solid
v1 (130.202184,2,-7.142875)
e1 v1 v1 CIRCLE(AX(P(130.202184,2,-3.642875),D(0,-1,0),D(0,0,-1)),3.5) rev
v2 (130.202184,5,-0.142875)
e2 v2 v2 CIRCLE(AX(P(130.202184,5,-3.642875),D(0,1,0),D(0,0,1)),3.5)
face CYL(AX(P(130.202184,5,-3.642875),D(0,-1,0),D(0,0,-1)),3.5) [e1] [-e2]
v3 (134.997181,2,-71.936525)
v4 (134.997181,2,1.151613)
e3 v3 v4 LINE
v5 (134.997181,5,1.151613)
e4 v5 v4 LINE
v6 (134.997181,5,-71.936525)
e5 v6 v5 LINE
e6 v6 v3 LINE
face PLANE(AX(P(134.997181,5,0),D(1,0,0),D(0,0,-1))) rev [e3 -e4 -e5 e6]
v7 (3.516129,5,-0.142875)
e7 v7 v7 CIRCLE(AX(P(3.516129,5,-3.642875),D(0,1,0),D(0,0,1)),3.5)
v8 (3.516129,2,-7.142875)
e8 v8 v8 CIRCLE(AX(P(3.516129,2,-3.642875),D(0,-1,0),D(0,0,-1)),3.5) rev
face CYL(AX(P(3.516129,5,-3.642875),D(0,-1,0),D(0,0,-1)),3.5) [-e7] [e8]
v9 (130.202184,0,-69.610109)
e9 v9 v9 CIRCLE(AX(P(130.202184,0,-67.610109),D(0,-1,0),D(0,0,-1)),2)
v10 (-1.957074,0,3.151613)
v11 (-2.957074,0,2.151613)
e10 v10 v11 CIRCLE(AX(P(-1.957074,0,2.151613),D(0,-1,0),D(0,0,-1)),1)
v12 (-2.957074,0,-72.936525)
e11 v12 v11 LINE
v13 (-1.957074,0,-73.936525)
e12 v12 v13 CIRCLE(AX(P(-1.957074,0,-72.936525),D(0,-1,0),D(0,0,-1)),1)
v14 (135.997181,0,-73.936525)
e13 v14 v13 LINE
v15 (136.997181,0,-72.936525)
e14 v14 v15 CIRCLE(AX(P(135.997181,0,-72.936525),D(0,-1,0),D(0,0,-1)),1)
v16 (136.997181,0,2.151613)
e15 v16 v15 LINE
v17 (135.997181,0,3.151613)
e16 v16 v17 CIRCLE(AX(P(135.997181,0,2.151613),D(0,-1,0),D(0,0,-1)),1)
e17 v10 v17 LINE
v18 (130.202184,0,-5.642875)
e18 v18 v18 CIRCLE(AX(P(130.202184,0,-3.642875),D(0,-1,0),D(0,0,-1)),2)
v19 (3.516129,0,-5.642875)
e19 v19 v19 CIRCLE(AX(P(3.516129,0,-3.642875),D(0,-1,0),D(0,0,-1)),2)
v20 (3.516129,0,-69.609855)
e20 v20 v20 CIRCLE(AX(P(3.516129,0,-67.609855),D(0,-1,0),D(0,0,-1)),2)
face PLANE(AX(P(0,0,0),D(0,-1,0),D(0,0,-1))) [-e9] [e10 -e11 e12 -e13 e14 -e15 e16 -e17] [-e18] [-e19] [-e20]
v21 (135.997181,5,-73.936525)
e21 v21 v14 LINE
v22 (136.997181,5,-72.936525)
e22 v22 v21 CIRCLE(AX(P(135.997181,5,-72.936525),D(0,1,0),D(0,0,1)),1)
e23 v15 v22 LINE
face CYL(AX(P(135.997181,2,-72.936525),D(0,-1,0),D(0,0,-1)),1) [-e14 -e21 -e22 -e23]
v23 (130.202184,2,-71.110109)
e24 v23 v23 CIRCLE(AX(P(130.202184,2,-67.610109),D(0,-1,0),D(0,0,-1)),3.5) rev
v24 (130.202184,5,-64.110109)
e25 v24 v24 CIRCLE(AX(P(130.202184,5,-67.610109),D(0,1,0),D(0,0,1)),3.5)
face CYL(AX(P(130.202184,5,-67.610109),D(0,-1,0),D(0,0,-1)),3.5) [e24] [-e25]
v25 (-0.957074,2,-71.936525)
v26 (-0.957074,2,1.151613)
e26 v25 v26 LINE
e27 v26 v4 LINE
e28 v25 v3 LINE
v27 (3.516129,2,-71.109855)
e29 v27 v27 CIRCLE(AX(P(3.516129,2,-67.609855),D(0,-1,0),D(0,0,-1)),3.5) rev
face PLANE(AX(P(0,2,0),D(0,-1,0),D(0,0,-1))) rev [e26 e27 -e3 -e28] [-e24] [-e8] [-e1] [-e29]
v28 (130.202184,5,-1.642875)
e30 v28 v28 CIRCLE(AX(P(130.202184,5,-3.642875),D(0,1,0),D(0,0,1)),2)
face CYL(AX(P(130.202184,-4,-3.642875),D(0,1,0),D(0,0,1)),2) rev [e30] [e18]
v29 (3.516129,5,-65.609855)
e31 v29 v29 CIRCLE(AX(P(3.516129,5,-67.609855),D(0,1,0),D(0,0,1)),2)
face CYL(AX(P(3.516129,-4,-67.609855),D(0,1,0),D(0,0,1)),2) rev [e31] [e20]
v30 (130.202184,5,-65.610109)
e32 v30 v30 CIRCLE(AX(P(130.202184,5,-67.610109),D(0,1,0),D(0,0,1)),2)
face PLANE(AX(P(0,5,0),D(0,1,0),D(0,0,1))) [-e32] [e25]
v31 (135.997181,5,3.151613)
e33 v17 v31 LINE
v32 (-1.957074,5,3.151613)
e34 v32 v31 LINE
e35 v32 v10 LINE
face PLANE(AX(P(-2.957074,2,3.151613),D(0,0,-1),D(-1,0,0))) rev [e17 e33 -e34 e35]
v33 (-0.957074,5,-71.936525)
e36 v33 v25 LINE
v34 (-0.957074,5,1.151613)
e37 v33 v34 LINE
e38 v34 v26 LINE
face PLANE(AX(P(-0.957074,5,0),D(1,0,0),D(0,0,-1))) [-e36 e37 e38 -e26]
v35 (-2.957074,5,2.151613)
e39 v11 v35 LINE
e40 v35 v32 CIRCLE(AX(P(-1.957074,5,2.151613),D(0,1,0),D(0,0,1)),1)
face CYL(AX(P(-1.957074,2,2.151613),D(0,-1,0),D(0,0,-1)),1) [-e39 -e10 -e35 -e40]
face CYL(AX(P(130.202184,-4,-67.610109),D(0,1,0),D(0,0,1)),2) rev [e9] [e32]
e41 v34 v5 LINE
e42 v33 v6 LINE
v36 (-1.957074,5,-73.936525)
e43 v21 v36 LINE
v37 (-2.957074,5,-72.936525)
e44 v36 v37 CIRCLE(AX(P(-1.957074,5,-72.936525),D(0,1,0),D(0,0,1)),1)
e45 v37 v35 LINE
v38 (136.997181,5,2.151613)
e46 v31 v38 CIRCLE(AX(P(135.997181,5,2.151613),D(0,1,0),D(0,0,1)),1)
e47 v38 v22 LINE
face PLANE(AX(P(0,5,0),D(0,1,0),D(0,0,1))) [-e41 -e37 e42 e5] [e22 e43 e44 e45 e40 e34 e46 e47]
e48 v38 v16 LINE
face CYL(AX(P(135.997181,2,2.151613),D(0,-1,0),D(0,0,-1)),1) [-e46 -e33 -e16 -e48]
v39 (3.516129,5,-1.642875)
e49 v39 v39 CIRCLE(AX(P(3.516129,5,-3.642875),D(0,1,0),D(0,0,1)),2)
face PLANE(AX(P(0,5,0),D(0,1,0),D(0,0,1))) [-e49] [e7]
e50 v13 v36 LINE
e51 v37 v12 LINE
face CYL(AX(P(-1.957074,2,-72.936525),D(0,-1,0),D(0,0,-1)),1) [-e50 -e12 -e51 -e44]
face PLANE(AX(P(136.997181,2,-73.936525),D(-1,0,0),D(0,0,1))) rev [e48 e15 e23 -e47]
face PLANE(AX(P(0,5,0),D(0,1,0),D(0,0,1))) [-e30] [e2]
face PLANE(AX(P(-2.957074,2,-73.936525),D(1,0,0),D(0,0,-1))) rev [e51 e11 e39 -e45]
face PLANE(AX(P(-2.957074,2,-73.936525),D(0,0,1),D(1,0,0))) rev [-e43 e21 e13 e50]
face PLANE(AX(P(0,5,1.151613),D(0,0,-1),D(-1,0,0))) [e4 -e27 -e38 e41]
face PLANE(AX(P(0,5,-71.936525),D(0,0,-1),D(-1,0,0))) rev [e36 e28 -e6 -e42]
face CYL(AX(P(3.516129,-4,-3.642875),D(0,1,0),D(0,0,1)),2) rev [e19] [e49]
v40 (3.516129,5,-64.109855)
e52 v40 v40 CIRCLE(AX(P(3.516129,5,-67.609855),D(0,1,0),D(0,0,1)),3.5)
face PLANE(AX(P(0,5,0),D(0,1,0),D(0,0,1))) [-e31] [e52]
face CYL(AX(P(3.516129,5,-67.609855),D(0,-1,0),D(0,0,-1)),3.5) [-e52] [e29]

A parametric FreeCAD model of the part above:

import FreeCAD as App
import Part
import Sketcher

V = App.Vector
Q = App.Units.Quantity


def edges_at(feature, points):
    """Names of the edges that pass closest to the given points."""
    edges = feature.Shape.Edges
    near = lambda p: min(range(len(edges)), key=lambda i: edges[i].distToShape(Part.Vertex(*p))[0])
    return sorted({f"Edge{near(p) + 1}" for p in points})


def add_polygon(sketch, points):
    """Adds a closed chain of lines whose ends are joined by coincident constraints."""
    first, n = sketch.GeometryCount, len(points)
    for a, b in zip(points, points[1:] + points[:1]):
        sketch.addGeometry(Part.LineSegment(App.Vector(*a, 0), App.Vector(*b, 0)), False)
    for i in range(n):
        sketch.addConstraint(Sketcher.Constraint("Coincident", first + i, 2, first + (i + 1) % n, 1))

doc = App.newDocument("Part")
body = doc.addObject("PartDesign::Body", "Body")

sketch1 = body.newObject("Sketcher::SketchObject", "Sketch")
sketch1.AttachmentSupport = (doc.getObject("XZ_Plane"), [""])
sketch1.MapMode = "FlatFace"
add_polygon(sketch1, [(-3, -74), (-3, 3), (137, 3), (137, -74)])
sketch1.addConstraint([
    Sketcher.Constraint("Vertical", 0),
    Sketcher.Constraint("Horizontal", 1),
    Sketcher.Constraint("Vertical", 2),
    Sketcher.Constraint("Horizontal", 3),
    Sketcher.Constraint("DistanceY", 0, 1, 0, 2, Q("77.088138 mm")),
    Sketcher.Constraint("DistanceX", 1, 1, 1, 2, Q("139.954255 mm")),
    Sketcher.Constraint("DistanceX", -1, 1, 1, 2, Q("136.997181 mm")),
    Sketcher.Constraint("DistanceY", -1, 1, 0, 2, Q("3.151613 mm")),
])
pad1 = body.newObject("PartDesign::Pad", "Pad")
pad1.Profile = sketch1
pad1.Length = 2
pad1.Reversed = True

sketch2 = body.newObject("Sketcher::SketchObject", "Sketch001")
sketch2.AttachmentSupport = (doc.getObject("XZ_Plane"), [""])
sketch2.MapMode = "FlatFace"
sketch2.AttachmentOffset = App.Placement(V(0, 0, -2), App.Rotation())
add_polygon(sketch2, [(-3, -73.9), (-3, 3.2), (137, 3.2), (137, -73.9)])
add_polygon(sketch2, [(135, 1.2), (-1, 1.2), (-1, -71.9), (135, -71.9)])
sketch2.addGeometry(Part.Circle(V(3.5, -3.6, 0), V(0, 0, 1), 3.5), False)
sketch2.addGeometry(Part.Circle(V(3.5, -67.6, 0), V(0, 0, 1), 3.5), False)
sketch2.addGeometry(Part.Circle(V(130.2, -67.6, 0), V(0, 0, 1), 3.5), False)
sketch2.addGeometry(Part.Circle(V(130.2, -3.6, 0), V(0, 0, 1), 3.5), False)
sketch2.addConstraint([
    Sketcher.Constraint("Vertical", 0),
    Sketcher.Constraint("Horizontal", 1),
    Sketcher.Constraint("Vertical", 2),
    Sketcher.Constraint("Horizontal", 3),
    Sketcher.Constraint("Horizontal", 4),
    Sketcher.Constraint("Vertical", 5),
    Sketcher.Constraint("Horizontal", 6),
    Sketcher.Constraint("Vertical", 7),
    Sketcher.Constraint("Equal", 8, 9),
    Sketcher.Constraint("Equal", 9, 10),
    Sketcher.Constraint("Equal", 10, 11),
    Sketcher.Constraint("Horizontal", 8, 3, 11, 3),
    Sketcher.Constraint("Vertical", 8, 3, 9, 3),
    Sketcher.Constraint("Vertical", 10, 3, 11, 3),
    Sketcher.Constraint("Diameter", 8, Q("7 mm")),
    Sketcher.Constraint("DistanceX", 0, 2, 4, 2, Q("2 mm")),
    Sketcher.Constraint("DistanceY", 4, 2, 0, 2, Q("2 mm")),
    Sketcher.Constraint("DistanceY", 3, 2, 5, 2, Q("2 mm")),
    Sketcher.Constraint("DistanceX", 6, 2, 2, 2, Q("2 mm")),
    Sketcher.Constraint("DistanceY", 0, 1, 0, 2, Q("77.088138 mm")),
    Sketcher.Constraint("DistanceX", 1, 1, 1, 2, Q("139.954255 mm")),
    Sketcher.Constraint("DistanceX", -1, 1, 8, 3, Q("3.516129 mm")),
    Sketcher.Constraint("DistanceY", 10, 3, -1, 1, Q("67.610109 mm")),
    Sketcher.Constraint("DistanceX", -1, 1, 1, 2, Q("136.997181 mm")),
    Sketcher.Constraint("DistanceY", 9, 3, 8, 3, Q("63.96698 mm")),
    Sketcher.Constraint("DistanceY", 8, 3, 0, 2, Q("6.794488 mm")),
    Sketcher.Constraint("DistanceX", 0, 2, 11, 3, Q("133.159258 mm")),
    Sketcher.Constraint("DistanceY", 8, 3, -1, 1, Q("3.642875 mm")),
])
pad2 = body.newObject("PartDesign::Pad", "Pad001")
pad2.Profile = sketch2
pad2.Length = 3
pad2.Reversed = True

sketch3 = body.newObject("Sketcher::SketchObject", "Sketch002")
sketch3.AttachmentSupport = (doc.getObject("XZ_Plane"), [""])
sketch3.MapMode = "FlatFace"
sketch3.AttachmentOffset = App.Placement(V(0, 0, -5), App.Rotation())
sketch3.addGeometry([
    Part.Circle(V(3.5, -67.6, 0), V(0, 0, 1), 2),
    Part.Circle(V(130.2, -67.6, 0), V(0, 0, 1), 2),
    Part.Circle(V(130.2, -3.6, 0), V(0, 0, 1), 2),
    Part.Circle(V(3.5, -3.6, 0), V(0, 0, 1), 2),
], False)
sketch3.addConstraint([
    Sketcher.Constraint("Equal", 0, 1),
    Sketcher.Constraint("Equal", 1, 2),
    Sketcher.Constraint("Equal", 2, 3),
    Sketcher.Constraint("Horizontal", 2, 3, 3, 3),
    Sketcher.Constraint("Vertical", 1, 3, 2, 3),
    Sketcher.Constraint("Vertical", 0, 3, 3, 3),
    Sketcher.Constraint("Diameter", 0, Q("4 mm")),
    Sketcher.Constraint("DistanceX", -1, 1, 0, 3, Q("3.516129 mm")),
    Sketcher.Constraint("DistanceY", 1, 3, -1, 1, Q("67.610109 mm")),
    Sketcher.Constraint("DistanceY", 0, 3, 2, 3, Q("63.96698 mm")),
    Sketcher.Constraint("DistanceY", 0, 3, -1, 1, Q("67.609855 mm")),
    Sketcher.Constraint("DistanceX", -1, 1, 1, 3, Q("130.202184 mm")),
])
pocket1 = body.newObject("PartDesign::Pocket", "Pocket")
pocket1.Profile = sketch3
pocket1.Length = 9
pocket1.Reversed = True
doc.recompute()

fillet = body.newObject("PartDesign::Fillet", "Fillet")
fillet.Base = (pocket1, edges_at(pocket1, [
    (136.997, 2.5, -73.937),
    (136.997, 2.5, 3.152),
    (-2.957, 2.5, 3.152),
    (-2.957, 2.5, -73.937),
]))
fillet.Radius = 1

doc.recompute()
